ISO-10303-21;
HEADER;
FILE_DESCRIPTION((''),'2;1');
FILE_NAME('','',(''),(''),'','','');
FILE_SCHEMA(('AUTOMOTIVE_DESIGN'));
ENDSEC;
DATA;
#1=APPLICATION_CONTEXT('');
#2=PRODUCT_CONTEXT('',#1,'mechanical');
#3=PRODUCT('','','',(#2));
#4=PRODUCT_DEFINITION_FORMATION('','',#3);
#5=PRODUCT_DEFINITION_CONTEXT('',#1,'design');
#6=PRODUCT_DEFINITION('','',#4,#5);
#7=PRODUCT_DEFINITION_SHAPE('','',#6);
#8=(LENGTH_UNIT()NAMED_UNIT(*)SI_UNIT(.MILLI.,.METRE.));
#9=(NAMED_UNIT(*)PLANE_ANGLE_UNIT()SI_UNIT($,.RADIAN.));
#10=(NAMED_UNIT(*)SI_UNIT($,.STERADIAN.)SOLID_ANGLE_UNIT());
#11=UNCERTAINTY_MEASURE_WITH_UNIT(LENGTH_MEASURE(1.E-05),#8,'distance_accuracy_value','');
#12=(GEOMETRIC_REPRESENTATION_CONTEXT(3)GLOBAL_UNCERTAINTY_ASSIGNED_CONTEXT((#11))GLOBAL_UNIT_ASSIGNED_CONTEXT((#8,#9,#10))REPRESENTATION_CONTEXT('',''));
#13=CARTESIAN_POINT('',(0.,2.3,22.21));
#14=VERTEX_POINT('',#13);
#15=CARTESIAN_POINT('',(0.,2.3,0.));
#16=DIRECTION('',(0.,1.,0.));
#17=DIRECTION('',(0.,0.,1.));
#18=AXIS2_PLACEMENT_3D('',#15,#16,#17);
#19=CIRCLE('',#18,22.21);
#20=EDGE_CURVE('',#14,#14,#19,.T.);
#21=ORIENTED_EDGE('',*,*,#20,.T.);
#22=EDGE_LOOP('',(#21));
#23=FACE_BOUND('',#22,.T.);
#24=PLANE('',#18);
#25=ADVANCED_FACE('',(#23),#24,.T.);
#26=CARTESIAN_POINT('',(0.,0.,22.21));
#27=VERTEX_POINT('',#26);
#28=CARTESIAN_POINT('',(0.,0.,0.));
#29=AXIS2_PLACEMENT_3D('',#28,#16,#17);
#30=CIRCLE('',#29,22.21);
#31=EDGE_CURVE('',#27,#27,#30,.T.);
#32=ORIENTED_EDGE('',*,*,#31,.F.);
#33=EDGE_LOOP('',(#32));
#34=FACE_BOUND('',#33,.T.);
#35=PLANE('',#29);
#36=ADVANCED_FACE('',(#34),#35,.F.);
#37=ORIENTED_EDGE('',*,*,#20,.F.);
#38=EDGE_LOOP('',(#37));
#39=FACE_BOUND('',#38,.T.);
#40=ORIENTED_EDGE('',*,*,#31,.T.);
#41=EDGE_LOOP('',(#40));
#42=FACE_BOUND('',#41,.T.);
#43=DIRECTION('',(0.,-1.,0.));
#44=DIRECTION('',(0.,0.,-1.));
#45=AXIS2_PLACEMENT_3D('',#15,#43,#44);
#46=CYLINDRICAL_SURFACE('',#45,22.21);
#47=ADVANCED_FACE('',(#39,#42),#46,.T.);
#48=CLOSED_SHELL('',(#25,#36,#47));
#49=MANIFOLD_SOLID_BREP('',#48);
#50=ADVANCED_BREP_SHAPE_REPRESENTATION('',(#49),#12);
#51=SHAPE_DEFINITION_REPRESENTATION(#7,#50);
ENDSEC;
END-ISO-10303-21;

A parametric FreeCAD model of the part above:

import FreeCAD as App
import Part
import Sketcher

V = App.Vector
Q = App.Units.Quantity

doc = App.newDocument("Part")
body = doc.addObject("PartDesign::Body", "Body")

# Sketch on XZ plane
sketch1 = body.newObject("Sketcher::SketchObject", "Sketch")
sketch1.AttachmentSupport = (doc.getObject("XZ_Plane"), [""])
sketch1.MapMode = "FlatFace"
sketch1.addGeometry(Part.Circle(V(0, 0, 0), V(0, 0, 1), 22), False)
sketch1.addConstraint([
    Sketcher.Constraint("Coincident", 0, 3, -1, 1),
    Sketcher.Constraint("Diameter", 0, Q("44.42 mm")),
])
pad1 = body.newObject("PartDesign::Pad", "Pad")
pad1.Profile = sketch1
pad1.Length = 2.3
pad1.Reversed = True

doc.recompute()
